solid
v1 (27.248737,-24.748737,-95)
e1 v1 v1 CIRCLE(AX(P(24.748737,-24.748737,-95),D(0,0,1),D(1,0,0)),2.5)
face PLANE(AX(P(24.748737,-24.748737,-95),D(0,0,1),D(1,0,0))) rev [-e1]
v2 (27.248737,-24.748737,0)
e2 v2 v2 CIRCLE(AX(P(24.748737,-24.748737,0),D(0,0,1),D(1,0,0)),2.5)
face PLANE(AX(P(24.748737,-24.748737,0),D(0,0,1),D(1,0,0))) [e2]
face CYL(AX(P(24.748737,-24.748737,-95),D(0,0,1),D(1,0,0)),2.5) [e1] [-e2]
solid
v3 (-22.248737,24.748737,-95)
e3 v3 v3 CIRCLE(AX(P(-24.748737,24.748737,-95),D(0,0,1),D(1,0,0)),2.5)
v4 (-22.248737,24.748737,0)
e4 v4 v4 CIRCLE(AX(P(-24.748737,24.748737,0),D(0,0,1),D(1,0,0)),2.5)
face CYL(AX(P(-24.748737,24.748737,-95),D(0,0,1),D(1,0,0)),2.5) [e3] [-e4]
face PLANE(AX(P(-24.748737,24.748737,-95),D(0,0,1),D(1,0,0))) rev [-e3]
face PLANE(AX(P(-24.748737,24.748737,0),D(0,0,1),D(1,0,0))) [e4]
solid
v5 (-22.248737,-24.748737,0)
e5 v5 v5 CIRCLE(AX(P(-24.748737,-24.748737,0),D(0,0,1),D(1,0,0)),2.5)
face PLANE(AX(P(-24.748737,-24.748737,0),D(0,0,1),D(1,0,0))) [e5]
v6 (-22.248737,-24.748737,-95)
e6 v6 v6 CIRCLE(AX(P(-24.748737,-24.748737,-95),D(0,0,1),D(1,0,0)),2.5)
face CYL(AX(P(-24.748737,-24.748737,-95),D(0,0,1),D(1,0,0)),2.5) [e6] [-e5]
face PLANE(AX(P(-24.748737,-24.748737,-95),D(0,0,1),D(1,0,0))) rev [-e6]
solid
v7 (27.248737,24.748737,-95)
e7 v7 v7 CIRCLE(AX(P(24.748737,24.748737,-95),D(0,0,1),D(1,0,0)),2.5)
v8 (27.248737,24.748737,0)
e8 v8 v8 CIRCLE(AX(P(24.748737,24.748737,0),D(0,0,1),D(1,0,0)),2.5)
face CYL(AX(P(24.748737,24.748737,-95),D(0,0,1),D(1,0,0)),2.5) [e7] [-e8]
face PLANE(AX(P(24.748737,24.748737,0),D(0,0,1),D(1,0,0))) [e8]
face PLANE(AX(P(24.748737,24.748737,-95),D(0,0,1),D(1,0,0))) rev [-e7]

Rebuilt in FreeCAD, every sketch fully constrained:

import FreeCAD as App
import Part
import Sketcher
from FreeCAD import Vector
Q = App.Units.Quantity

doc = App.newDocument("Part")
params = doc.addObject("Spreadsheet::Sheet", "Params")
for row, (alias, value) in enumerate([
    ("sketch1_diameter", "5 mm"),
    ("pad1_length", "95 mm"),
    ("sketch2_diameter", "5 mm"),
    ("pad2_length", "95 mm"),
    ("sketch3_diameter", "5 mm"),
    ("pad3_length", "95 mm"),
    ("sketch4_diameter", "5 mm"),
    ("pad4_length", "95 mm"),
], start=1):
    params.set(f"A{row}", alias)
    params.set(f"B{row}", "=" + value)
    params.setAlias(f"B{row}", alias)

body = doc.addObject("PartDesign::Body", "Body")

sketch1 = body.newObject("Sketcher::SketchObject", "Sketch")
sketch1.AttachmentSupport = (doc.getObject("XY_Plane"), [""])
sketch1.MapMode = "FlatFace"
sketch1.addGeometry(Part.Circle(Vector(24.7, 24.7, 0), Vector(0, 0, 1), 2.5), False)
sketch1.addConstraint(Sketcher.Constraint("Diameter", 0, Q("5 mm")))
sketch1.addConstraint(Sketcher.Constraint("DistanceX", -1, 1, 0, 3, Q("24.748737 mm")))
sketch1.addConstraint(Sketcher.Constraint("DistanceY", -1, 1, 0, 3, Q("24.748737 mm")))
sketch1.setExpression("Constraints[0]", "Params.sketch1_diameter")
pad1 = body.newObject("PartDesign::Pad", "Pad")
pad1.Profile = sketch1
pad1.setExpression("Length", "Params.pad1_length")
pad1.Reversed = True
body2 = doc.addObject("PartDesign::Body", "Body001")

sketch2 = body2.newObject("Sketcher::SketchObject", "Sketch001")
sketch2.AttachmentSupport = (doc.getObject("XY_Plane001"), [""])
sketch2.MapMode = "FlatFace"
sketch2.addGeometry(Part.Circle(Vector(-24.7, 24.7, 0), Vector(0, 0, 1), 2.5), False)
sketch2.addConstraint(Sketcher.Constraint("Diameter", 0, Q("5 mm")))
sketch2.addConstraint(Sketcher.Constraint("DistanceX", 0, 3, -1, 1, Q("24.748737 mm")))
sketch2.addConstraint(Sketcher.Constraint("DistanceY", -1, 1, 0, 3, Q("24.748737 mm")))
sketch2.setExpression("Constraints[0]", "Params.sketch2_diameter")
pad2 = body2.newObject("PartDesign::Pad", "Pad001")
pad2.Profile = sketch2
pad2.setExpression("Length", "Params.pad2_length")
pad2.Reversed = True
body3 = doc.addObject("PartDesign::Body", "Body002")

sketch3 = body3.newObject("Sketcher::SketchObject", "Sketch002")
sketch3.AttachmentSupport = (doc.getObject("XY_Plane002"), [""])
sketch3.MapMode = "FlatFace"
sketch3.addGeometry(Part.Circle(Vector(-24.7, -24.7, 0), Vector(0, 0, 1), 2.5), False)
sketch3.addConstraint(Sketcher.Constraint("Diameter", 0, Q("5 mm")))
sketch3.addConstraint(Sketcher.Constraint("DistanceX", 0, 3, -1, 1, Q("24.748737 mm")))
sketch3.addConstraint(Sketcher.Constraint("DistanceY", 0, 3, -1, 1, Q("24.748737 mm")))
sketch3.setExpression("Constraints[0]", "Params.sketch3_diameter")
pad3 = body3.newObject("PartDesign::Pad", "Pad002")
pad3.Profile = sketch3
pad3.setExpression("Length", "Params.pad3_length")
pad3.Reversed = True
body4 = doc.addObject("PartDesign::Body", "Body003")

sketch4 = body4.newObject("Sketcher::SketchObject", "Sketch003")
sketch4.AttachmentSupport = (doc.getObject("XY_Plane003"), [""])
sketch4.MapMode = "FlatFace"
sketch4.addGeometry(Part.Circle(Vector(24.7, -24.7, 0), Vector(0, 0, 1), 2.5), False)
sketch4.addConstraint(Sketcher.Constraint("Diameter", 0, Q("5 mm")))
sketch4.addConstraint(Sketcher.Constraint("DistanceX", -1, 1, 0, 3, Q("24.748737 mm")))
sketch4.addConstraint(Sketcher.Constraint("DistanceY", 0, 3, -1, 1, Q("24.748737 mm")))
sketch4.setExpression("Constraints[0]", "Params.sketch4_diameter")
pad4 = body4.newObject("PartDesign::Pad", "Pad003")
pad4.Profile = sketch4
pad4.setExpression("Length", "Params.pad4_length")
pad4.Reversed = True

doc.recompute()
